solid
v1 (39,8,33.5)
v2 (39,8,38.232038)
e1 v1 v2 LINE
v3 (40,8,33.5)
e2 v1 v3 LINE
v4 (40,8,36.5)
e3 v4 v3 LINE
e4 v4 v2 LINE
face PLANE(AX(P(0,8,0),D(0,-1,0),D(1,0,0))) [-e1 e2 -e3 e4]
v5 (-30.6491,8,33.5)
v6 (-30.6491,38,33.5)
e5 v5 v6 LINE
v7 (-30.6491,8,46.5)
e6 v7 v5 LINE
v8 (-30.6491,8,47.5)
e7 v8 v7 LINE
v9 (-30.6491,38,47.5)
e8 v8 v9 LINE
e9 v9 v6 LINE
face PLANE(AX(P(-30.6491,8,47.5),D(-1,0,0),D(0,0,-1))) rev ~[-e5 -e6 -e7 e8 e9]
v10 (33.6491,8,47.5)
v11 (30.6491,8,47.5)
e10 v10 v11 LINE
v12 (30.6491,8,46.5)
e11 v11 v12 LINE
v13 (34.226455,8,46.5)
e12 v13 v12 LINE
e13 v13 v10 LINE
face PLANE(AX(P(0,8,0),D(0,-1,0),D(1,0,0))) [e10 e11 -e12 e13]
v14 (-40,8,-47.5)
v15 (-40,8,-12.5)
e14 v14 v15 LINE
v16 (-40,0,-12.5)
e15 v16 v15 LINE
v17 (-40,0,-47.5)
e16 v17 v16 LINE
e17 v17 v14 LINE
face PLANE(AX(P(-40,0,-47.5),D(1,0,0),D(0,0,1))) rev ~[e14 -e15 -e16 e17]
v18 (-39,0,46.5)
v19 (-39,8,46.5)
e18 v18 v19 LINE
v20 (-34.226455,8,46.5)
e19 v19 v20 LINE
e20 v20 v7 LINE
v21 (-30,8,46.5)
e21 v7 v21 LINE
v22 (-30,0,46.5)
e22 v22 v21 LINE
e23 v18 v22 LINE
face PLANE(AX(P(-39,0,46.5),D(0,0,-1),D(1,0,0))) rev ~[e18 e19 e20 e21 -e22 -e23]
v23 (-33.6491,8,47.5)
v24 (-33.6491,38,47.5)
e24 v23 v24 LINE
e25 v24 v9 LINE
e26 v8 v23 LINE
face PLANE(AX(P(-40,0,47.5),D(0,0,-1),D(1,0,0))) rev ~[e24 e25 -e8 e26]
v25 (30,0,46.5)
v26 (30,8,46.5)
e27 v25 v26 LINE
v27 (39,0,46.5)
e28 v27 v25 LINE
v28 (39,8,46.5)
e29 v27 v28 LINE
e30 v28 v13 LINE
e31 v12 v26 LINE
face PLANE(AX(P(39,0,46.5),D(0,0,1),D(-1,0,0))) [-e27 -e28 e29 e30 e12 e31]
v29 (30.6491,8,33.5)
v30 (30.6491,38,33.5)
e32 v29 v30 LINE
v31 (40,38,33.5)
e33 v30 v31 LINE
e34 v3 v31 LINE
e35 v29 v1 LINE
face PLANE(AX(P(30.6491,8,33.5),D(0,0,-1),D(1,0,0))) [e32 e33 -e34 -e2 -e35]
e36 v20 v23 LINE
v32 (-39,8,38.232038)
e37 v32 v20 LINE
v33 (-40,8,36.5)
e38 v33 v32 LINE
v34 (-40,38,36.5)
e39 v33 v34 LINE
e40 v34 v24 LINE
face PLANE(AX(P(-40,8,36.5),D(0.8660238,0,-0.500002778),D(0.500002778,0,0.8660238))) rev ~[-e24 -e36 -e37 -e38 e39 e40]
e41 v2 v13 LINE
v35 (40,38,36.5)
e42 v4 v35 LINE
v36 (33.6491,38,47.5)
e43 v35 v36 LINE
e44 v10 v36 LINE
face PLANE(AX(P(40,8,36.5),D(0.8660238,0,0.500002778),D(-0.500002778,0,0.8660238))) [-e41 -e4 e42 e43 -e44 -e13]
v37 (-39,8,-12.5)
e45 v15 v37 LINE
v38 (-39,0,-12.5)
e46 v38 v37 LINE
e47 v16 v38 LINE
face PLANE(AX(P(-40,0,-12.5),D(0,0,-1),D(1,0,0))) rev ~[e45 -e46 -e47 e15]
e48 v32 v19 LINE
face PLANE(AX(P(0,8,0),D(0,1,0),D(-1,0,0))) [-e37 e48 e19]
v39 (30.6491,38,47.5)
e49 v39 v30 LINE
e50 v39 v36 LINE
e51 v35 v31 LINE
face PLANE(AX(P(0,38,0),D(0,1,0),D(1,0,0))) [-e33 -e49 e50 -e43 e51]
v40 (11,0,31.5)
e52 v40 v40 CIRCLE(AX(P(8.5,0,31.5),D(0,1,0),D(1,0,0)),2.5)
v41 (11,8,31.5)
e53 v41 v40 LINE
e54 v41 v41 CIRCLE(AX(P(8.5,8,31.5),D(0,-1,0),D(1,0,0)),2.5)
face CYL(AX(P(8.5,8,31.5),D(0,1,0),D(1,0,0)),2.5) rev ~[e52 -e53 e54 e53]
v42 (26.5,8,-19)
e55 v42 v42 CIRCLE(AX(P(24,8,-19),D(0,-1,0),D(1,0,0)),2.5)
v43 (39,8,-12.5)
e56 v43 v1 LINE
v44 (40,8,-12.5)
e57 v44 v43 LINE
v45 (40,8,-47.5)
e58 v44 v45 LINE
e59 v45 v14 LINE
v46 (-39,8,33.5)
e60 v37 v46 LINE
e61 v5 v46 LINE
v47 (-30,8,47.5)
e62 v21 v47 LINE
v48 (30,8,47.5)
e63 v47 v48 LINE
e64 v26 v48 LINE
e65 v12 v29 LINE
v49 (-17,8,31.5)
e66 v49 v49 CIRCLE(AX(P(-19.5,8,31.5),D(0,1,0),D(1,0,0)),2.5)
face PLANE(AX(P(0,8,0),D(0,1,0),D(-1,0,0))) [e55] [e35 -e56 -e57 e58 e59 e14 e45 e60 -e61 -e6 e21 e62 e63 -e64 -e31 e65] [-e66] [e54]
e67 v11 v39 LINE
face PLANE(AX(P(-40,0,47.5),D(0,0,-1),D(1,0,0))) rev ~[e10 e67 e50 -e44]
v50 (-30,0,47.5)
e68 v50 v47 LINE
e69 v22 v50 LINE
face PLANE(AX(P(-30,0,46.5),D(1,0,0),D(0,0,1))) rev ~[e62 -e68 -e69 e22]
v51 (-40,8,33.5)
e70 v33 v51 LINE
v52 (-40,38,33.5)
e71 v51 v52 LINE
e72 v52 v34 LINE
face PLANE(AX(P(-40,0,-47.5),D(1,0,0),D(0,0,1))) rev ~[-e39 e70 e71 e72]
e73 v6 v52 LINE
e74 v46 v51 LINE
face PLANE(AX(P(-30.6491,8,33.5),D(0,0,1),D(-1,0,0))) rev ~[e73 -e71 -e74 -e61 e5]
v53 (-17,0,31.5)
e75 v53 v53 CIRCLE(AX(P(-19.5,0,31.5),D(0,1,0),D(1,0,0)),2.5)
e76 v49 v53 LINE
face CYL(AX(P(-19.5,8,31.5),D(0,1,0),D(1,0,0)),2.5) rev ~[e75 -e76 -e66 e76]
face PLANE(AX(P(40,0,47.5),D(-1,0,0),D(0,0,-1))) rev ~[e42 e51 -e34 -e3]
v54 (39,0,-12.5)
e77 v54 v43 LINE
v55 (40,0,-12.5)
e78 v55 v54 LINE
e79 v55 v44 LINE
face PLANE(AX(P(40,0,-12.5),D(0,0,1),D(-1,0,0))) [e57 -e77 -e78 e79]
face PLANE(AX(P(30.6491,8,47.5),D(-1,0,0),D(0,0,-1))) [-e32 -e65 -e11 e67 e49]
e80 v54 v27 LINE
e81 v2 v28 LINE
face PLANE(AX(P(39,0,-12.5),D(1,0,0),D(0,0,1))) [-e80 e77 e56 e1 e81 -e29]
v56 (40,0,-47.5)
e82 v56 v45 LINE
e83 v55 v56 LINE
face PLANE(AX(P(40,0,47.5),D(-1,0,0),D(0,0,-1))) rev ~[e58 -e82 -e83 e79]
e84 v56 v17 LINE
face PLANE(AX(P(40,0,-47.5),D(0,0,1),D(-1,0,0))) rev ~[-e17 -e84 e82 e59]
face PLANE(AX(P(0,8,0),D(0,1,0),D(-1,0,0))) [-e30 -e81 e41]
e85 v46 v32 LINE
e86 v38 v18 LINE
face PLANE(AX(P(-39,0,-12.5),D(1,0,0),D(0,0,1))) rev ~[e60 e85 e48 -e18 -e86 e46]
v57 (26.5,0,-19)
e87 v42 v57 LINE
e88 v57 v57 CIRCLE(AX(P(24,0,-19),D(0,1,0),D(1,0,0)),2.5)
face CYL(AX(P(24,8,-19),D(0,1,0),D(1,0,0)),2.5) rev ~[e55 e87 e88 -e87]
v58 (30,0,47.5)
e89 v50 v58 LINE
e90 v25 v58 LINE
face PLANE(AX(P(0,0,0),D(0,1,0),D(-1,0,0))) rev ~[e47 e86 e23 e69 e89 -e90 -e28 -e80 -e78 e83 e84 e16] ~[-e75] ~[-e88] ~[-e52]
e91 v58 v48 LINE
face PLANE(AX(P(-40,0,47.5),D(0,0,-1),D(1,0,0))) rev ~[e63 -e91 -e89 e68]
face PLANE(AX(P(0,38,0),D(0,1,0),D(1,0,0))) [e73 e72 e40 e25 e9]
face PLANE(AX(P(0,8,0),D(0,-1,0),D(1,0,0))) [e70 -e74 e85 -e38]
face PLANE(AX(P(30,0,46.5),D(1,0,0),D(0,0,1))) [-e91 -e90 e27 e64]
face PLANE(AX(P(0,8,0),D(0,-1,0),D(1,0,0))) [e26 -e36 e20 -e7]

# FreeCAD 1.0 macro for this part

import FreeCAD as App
import Part
import Sketcher
from FreeCAD import Vector
Q = App.Units.Quantity


def add_polygon(sketch, points):
    """Adds a closed chain of lines whose ends are joined by coincident constraints."""
    first, n = sketch.GeometryCount, len(points)
    for a, b in zip(points, points[1:] + points[:1]):
        sketch.addGeometry(Part.LineSegment(App.Vector(*a, 0), App.Vector(*b, 0)), False)
    for i in range(n):
        sketch.addConstraint(Sketcher.Constraint("Coincident", first + i, 2, first + (i + 1) % n, 1))

doc = App.newDocument("Part")
body = doc.addObject("PartDesign::Body", "Body")

# Sketch on XZ plane
sketch1 = body.newObject("Sketcher::SketchObject", "Sketch")
sketch1.AttachmentSupport = (doc.getObject("XZ_Plane"), [""])
sketch1.MapMode = "FlatFace"
add_polygon(sketch1, [(-40, -48), (-40, 48), (40, 48), (40, -48)])  # lines 0-3
sketch1.addConstraint([
    Sketcher.Constraint("Vertical", 0),
    Sketcher.Constraint("Horizontal", 1),
    Sketcher.Constraint("Vertical", 2),
    Sketcher.Constraint("Horizontal", 3),
    Sketcher.Constraint("Symmetric", 0, 2, 2, 2, -1, 1),
    Sketcher.Constraint("DistanceX", 1, 1, 1, 2, 80.0),
    Sketcher.Constraint("DistanceY", 0, 1, 0, 2, 95.0),
])
pad1 = body.newObject("PartDesign::Pad", "Pad")
pad1.Profile = sketch1
pad1.Length = 8
pad1.Reversed = True

# Sketch on XZ plane
sketch2 = body.newObject("Sketcher::SketchObject", "Sketch001")
sketch2.AttachmentSupport = (doc.getObject("XZ_Plane"), [""])
sketch2.MapMode = "FlatFace"
sketch2.AttachmentOffset = App.Placement(Vector(0, 0, -8), App.Rotation())
sketch2.addGeometry([
    Part.Circle(Vector(24, -19, 0), Vector(0, 0, 1), 2.5),
    Part.Circle(Vector(8.5, 31.5, 0), Vector(0, 0, 1), 2.5),
    Part.Circle(Vector(-19.5, 31.5, 0), Vector(0, 0, 1), 2.5),
], False)
sketch2.addConstraint([
    Sketcher.Constraint("Equal", 0, 1),
    Sketcher.Constraint("Equal", 1, 2),
    Sketcher.Constraint("Horizontal", 1, 3, 2, 3),
    Sketcher.Constraint("Diameter", 0, 5.0),
    Sketcher.Constraint("DistanceX", -1, 1, 0, 3, 24.0),
    Sketcher.Constraint("DistanceY", 0, 3, -1, 1, 19.0),
    Sketcher.Constraint("DistanceX", -1, 1, 1, 3, 8.5),
    Sketcher.Constraint("DistanceY", -1, 1, 1, 3, 31.5),
    Sketcher.Constraint("DistanceX", 2, 3, -1, 1, 19.5),
])
pocket1 = body.newObject("PartDesign::Pocket", "Pocket")
pocket1.Profile = sketch2
pocket1.Length = 8
pocket1.Reversed = True

# Sketch on XZ plane
sketch3 = body.newObject("Sketcher::SketchObject", "Sketch002")
sketch3.AttachmentSupport = (doc.getObject("XZ_Plane"), [""])
sketch3.MapMode = "FlatFace"
sketch3.AttachmentOffset = App.Placement(Vector(0, 0, -8), App.Rotation())
add_polygon(sketch3, [(30.6, 33.5), (30.6, 47.5), (33.6, 47.5), (40, 36.5), (40, 33.5)])  # lines 0-4
add_polygon(sketch3, [(-40, 36.5), (-33.6, 47.5), (-30.6, 47.5), (-30.6, 33.5), (-40, 33.5)])  # lines 5-9
sketch3.addConstraint([
    Sketcher.Constraint("Vertical", 0),
    Sketcher.Constraint("Horizontal", 1),
    Sketcher.Constraint("Vertical", 3),
    Sketcher.Constraint("Horizontal", 4),
    Sketcher.Constraint("Horizontal", 6),
    Sketcher.Constraint("Vertical", 7),
    Sketcher.Constraint("Horizontal", 8),
    Sketcher.Constraint("Vertical", 9),
    Sketcher.Constraint("Symmetric", 1, 2, 5, 2, -2),
    Sketcher.Constraint("Symmetric", 4, 2, 7, 2, -2),
    Sketcher.Constraint("Symmetric", 2, 2, 9, 2, -2),
    Sketcher.Constraint("Equal", 6, 3),
    Sketcher.Constraint("DistanceX", 1, 1, 1, 2, 3.0),
    Sketcher.Constraint("DistanceY", 0, 1, 0, 2, 14.0),
    Sketcher.Constraint("Angle", 2, Q("-59.9998 deg")),
    Sketcher.Constraint("DistanceX", -1, 1, 2, 2, 40.0),
    Sketcher.Constraint("DistanceY", -1, 1, 0, 2, 47.5),
])
pad2 = body.newObject("PartDesign::Pad", "Pad001")
pad2.Profile = sketch3
pad2.Length = 30
pad2.Reversed = True

# Sketch on XZ plane
sketch4 = body.newObject("Sketcher::SketchObject", "Sketch003")
sketch4.AttachmentSupport = (doc.getObject("XZ_Plane"), [""])
sketch4.MapMode = "FlatFace"
add_polygon(sketch4, [(-40, 47.5), (-40, -12.5), (-39, -12.5), (-39, 46.5), (-30, 46.5), (-30, 47.5)])  # lines 0-5
add_polygon(sketch4, [(30, 47.5), (30, 46.5), (39, 46.5), (39, -12.5), (40, -12.5), (40, 47.5)])  # lines 6-11
sketch4.addConstraint([
    Sketcher.Constraint("Vertical", 0),
    Sketcher.Constraint("Horizontal", 1),
    Sketcher.Constraint("Vertical", 2),
    Sketcher.Constraint("Horizontal", 3),
    Sketcher.Constraint("Vertical", 4),
    Sketcher.Constraint("Horizontal", 5),
    Sketcher.Constraint("Vertical", 6),
    Sketcher.Constraint("Horizontal", 7),
    Sketcher.Constraint("Vertical", 8),
    Sketcher.Constraint("Horizontal", 9),
    Sketcher.Constraint("Vertical", 10),
    Sketcher.Constraint("Horizontal", 11),
    Sketcher.Constraint("Symmetric", 3, 2, 6, 2, -2),
    Sketcher.Constraint("Symmetric", 1, 2, 8, 2, -2),
    Sketcher.Constraint("Symmetric", 5, 2, 10, 2, -2),
    Sketcher.Constraint("Equal", 9, 4),
    Sketcher.Constraint("DistanceX", 1, 1, 1, 2, 1.0),
    Sketcher.Constraint("DistanceX", 5, 2, 5, 1, 10.0),
    Sketcher.Constraint("DistanceY", 0, 2, 0, 1, 60.0),
    Sketcher.Constraint("DistanceX", 3, 2, 6, 2, 60.0),
    Sketcher.Constraint("DistanceY", 0, 2, -1, 1, 12.5),
])
pocket2 = body.newObject("PartDesign::Pocket", "Pocket001")
pocket2.Profile = sketch4
pocket2.Length = 8

doc.recompute()
